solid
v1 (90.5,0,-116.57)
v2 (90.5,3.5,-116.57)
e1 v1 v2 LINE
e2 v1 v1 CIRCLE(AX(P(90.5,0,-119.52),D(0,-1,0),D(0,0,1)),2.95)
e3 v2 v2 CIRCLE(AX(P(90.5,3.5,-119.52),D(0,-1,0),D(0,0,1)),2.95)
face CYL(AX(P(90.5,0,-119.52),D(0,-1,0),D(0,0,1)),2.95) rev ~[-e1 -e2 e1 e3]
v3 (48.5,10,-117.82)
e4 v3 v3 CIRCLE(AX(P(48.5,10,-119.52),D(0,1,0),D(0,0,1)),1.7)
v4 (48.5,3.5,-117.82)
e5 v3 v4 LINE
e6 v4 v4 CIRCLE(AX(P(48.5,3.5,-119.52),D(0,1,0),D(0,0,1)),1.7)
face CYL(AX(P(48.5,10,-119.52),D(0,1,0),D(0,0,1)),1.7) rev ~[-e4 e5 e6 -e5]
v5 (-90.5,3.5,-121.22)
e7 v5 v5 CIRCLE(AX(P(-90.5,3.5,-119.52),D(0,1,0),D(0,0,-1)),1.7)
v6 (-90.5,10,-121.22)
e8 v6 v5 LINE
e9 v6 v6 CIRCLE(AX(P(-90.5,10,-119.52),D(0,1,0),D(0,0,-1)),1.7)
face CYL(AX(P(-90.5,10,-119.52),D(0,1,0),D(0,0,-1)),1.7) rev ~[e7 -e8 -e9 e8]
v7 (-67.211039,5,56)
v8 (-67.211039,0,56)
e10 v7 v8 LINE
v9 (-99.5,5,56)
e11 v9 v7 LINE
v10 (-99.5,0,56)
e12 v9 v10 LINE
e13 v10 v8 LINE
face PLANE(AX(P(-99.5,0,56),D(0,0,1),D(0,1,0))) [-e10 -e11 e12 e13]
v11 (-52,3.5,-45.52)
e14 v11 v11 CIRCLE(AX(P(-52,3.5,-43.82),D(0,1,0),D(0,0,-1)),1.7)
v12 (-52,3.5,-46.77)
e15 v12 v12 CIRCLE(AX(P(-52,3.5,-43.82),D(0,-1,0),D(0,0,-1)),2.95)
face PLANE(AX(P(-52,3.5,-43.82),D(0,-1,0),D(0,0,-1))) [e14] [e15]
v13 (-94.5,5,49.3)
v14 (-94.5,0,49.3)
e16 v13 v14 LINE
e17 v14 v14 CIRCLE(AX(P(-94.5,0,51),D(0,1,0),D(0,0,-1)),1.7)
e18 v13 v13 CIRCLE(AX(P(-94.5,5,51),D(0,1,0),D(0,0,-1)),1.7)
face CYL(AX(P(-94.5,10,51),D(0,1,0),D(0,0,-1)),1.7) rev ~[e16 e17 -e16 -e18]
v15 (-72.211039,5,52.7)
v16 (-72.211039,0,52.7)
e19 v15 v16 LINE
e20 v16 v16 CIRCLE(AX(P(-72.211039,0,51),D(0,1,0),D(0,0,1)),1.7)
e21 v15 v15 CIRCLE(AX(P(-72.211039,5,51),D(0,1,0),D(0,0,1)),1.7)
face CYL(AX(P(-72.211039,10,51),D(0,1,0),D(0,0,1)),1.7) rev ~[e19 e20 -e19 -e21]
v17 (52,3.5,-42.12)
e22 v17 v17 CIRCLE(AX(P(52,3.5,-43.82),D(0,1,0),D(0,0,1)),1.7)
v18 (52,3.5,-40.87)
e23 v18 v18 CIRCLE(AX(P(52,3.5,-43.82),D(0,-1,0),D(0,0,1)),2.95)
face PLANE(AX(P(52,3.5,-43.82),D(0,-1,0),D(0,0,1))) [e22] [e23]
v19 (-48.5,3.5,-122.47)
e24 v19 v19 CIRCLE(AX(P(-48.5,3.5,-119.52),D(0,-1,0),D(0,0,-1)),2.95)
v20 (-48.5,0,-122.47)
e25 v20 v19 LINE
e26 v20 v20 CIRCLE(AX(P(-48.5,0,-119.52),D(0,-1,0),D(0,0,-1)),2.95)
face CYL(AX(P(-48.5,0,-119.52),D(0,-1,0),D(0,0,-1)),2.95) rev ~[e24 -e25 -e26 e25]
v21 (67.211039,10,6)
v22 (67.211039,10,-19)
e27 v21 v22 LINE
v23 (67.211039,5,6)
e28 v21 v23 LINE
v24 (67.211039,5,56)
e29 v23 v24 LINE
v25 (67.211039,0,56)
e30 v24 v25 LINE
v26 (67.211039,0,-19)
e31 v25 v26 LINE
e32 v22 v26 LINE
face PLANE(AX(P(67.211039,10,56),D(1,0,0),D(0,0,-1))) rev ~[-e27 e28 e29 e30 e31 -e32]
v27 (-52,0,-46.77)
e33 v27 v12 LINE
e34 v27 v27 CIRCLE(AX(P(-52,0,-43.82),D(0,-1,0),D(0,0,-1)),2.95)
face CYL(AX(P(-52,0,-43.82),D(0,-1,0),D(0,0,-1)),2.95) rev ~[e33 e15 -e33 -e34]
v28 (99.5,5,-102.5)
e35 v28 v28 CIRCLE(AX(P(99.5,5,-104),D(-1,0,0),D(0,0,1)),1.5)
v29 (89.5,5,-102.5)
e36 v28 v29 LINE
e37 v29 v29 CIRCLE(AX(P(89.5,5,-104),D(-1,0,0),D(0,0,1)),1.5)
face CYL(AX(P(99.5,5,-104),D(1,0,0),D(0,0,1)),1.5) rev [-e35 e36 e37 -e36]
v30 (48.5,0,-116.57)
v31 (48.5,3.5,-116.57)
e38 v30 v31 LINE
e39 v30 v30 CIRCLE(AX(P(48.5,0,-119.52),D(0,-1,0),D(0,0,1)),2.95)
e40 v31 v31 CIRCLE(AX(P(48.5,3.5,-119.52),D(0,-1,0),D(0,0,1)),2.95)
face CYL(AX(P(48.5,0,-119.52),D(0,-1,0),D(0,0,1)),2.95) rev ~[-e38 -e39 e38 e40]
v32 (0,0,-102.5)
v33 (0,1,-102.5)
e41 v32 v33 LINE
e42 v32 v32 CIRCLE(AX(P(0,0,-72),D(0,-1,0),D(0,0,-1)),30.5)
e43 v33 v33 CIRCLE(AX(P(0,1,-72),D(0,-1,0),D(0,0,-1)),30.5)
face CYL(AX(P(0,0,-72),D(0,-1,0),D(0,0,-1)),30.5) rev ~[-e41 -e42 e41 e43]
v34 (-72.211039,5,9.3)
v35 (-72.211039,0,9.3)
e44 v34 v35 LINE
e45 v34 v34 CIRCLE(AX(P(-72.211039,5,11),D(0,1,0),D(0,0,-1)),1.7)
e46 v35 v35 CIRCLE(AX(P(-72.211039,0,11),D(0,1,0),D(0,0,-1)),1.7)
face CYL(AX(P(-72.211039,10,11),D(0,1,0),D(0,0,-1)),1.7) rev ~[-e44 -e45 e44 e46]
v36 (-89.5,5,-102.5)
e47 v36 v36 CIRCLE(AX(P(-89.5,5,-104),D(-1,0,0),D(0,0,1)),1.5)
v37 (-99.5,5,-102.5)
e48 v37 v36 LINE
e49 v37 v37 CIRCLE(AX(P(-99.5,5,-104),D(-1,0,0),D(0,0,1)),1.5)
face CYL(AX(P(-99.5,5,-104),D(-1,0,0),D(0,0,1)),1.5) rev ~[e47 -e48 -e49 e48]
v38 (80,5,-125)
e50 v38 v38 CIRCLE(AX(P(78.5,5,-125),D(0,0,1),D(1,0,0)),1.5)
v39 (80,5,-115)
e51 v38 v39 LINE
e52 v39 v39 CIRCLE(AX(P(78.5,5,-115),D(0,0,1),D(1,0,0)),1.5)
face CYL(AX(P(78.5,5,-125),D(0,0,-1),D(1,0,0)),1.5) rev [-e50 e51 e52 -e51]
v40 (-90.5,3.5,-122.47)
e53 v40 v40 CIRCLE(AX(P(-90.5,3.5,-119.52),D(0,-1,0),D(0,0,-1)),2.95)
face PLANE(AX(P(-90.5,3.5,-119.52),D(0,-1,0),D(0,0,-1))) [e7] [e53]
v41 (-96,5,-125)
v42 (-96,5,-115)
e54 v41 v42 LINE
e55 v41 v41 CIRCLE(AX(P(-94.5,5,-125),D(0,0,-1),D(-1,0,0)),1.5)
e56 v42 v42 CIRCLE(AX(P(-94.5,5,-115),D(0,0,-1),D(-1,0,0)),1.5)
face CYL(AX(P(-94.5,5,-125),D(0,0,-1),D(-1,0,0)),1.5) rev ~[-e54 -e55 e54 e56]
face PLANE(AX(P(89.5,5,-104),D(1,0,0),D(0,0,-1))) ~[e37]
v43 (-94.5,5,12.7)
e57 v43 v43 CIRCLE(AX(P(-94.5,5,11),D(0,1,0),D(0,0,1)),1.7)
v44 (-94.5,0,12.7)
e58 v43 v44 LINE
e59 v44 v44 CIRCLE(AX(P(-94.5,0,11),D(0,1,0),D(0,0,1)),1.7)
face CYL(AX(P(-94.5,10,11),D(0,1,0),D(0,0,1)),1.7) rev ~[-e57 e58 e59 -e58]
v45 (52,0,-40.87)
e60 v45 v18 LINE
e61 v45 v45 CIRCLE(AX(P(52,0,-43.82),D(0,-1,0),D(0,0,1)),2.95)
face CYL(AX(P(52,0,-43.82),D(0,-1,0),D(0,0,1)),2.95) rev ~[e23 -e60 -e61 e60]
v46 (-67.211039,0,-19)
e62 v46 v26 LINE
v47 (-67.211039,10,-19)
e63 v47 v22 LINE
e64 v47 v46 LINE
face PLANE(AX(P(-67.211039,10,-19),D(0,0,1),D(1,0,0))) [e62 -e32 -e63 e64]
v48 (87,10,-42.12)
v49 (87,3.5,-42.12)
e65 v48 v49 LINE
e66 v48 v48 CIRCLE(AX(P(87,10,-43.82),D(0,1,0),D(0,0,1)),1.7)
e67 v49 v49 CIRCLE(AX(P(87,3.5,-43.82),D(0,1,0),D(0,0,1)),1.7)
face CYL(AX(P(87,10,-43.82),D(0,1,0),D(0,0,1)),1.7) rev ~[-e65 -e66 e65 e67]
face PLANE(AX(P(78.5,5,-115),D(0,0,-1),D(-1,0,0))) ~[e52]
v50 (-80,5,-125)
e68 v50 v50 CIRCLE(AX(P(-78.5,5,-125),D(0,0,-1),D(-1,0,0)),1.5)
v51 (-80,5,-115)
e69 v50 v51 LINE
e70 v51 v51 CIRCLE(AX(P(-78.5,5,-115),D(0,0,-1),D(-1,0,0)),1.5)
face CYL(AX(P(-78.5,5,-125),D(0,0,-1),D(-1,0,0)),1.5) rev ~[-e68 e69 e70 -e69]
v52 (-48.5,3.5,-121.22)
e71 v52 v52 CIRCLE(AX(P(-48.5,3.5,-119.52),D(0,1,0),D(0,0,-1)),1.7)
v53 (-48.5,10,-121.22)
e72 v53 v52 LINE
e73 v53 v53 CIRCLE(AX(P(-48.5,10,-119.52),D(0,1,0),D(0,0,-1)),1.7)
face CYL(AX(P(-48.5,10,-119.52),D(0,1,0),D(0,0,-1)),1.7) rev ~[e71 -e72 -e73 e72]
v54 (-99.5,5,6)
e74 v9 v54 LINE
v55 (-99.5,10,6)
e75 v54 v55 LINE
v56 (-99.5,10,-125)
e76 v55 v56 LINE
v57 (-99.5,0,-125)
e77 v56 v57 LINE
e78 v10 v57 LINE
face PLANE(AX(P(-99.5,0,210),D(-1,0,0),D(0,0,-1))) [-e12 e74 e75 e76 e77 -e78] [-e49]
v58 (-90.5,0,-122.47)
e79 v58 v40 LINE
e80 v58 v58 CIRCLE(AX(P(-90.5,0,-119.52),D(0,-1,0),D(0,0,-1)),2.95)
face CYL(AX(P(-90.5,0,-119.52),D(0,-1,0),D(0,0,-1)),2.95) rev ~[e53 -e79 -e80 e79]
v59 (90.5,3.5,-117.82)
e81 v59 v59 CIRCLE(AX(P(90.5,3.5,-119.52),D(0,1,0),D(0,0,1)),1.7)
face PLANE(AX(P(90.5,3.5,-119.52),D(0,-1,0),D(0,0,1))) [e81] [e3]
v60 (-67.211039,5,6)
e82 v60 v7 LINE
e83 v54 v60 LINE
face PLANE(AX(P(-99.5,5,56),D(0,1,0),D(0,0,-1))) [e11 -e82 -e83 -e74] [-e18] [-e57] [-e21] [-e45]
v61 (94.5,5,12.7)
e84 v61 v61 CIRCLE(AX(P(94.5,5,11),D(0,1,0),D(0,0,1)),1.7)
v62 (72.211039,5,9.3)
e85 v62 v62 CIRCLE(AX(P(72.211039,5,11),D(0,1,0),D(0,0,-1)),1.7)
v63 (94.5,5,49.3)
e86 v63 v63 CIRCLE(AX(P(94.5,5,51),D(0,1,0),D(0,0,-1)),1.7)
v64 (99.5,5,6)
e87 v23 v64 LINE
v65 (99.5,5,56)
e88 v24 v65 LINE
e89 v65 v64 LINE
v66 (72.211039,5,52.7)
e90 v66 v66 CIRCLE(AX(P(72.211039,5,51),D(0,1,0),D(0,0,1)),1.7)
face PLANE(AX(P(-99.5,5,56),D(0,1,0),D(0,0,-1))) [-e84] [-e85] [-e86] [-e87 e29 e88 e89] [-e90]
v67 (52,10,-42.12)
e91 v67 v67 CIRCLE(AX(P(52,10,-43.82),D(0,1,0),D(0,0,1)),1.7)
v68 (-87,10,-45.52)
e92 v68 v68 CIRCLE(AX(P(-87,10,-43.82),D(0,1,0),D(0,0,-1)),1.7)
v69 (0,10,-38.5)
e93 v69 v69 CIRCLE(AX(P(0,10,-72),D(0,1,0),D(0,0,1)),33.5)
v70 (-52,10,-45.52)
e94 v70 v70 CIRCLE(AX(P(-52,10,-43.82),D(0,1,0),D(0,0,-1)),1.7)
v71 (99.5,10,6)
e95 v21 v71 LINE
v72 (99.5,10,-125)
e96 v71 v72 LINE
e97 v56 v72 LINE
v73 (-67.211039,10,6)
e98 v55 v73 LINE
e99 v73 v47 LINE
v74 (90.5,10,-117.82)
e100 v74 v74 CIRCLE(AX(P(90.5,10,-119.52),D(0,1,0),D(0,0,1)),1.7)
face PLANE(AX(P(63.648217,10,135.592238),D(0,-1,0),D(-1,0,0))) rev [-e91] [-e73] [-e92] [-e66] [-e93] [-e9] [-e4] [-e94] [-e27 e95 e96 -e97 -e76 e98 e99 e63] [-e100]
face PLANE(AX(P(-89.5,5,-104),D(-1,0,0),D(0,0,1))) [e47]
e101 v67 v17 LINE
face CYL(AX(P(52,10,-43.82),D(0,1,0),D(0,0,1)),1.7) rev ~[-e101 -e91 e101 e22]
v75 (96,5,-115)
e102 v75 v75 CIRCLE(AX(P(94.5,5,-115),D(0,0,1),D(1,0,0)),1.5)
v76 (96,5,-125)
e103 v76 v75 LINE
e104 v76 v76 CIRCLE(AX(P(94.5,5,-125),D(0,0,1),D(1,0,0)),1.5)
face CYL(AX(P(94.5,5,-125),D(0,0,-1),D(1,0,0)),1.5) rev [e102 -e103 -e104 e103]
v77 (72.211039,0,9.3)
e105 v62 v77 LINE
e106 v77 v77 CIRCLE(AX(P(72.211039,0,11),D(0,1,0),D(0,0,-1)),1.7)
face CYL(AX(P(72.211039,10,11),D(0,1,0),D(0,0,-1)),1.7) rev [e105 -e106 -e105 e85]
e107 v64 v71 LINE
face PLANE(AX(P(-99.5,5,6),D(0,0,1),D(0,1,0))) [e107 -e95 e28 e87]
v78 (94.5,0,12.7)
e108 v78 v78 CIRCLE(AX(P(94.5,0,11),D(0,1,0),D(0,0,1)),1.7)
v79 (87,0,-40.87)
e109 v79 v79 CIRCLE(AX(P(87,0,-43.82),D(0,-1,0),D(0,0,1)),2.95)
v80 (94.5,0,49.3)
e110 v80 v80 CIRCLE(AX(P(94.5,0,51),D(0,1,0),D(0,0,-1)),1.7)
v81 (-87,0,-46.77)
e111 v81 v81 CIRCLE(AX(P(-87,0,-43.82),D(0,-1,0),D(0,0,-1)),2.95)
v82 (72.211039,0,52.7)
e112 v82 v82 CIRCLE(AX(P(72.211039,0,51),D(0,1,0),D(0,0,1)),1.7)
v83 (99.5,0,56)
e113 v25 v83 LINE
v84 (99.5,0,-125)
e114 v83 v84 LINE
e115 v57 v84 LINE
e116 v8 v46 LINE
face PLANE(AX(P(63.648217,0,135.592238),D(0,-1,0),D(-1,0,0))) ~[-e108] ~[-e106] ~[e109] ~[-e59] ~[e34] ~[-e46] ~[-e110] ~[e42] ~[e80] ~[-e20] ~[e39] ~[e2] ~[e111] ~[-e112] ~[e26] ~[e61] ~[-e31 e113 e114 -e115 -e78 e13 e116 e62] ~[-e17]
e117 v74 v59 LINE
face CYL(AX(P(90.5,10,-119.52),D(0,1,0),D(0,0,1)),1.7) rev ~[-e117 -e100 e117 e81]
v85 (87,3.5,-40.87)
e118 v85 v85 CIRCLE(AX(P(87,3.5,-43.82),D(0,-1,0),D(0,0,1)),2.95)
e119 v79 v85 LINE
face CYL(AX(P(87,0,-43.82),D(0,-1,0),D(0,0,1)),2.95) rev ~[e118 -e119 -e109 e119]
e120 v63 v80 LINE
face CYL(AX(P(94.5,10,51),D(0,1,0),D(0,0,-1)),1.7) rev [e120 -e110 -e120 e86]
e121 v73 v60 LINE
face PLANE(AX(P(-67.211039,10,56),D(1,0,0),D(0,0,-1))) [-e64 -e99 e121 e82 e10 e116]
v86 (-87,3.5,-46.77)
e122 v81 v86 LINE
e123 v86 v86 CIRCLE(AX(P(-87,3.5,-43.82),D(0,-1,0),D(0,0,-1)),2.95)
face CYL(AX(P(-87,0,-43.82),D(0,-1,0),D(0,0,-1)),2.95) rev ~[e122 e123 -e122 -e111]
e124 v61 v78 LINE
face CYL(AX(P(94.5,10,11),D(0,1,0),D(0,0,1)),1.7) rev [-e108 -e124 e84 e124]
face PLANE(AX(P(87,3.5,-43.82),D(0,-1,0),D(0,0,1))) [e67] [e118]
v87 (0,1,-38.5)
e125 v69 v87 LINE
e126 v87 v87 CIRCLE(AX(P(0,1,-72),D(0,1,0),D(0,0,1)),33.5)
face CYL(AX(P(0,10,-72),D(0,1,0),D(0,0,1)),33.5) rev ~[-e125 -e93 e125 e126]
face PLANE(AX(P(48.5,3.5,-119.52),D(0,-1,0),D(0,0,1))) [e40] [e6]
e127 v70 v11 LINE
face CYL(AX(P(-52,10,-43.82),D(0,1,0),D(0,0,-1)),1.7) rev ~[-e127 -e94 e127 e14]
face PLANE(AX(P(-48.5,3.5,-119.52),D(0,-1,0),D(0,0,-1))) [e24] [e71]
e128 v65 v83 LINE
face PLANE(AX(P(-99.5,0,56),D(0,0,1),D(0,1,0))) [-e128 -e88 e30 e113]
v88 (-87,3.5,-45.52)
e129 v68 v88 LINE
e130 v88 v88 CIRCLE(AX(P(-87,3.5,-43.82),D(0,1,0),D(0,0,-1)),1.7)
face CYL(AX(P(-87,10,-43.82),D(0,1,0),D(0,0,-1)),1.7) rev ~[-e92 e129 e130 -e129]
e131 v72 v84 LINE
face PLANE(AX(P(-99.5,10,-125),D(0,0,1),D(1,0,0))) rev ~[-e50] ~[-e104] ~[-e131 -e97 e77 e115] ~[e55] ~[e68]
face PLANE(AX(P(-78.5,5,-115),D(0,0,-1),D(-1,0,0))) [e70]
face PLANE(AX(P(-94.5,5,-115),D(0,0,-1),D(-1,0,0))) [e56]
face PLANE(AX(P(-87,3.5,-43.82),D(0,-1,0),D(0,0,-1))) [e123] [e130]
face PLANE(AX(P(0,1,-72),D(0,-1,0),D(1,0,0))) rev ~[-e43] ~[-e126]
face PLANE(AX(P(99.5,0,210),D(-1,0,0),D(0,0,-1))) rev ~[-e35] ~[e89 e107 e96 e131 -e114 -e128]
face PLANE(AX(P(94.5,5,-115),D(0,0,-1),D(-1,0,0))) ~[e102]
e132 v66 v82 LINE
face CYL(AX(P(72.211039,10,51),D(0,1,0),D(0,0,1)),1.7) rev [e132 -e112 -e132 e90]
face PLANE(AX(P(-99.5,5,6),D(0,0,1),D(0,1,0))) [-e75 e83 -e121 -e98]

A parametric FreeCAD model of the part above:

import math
import FreeCAD as App
import Part
import Sketcher

V = App.Vector
Q = App.Units.Quantity

doc = App.newDocument("Part")
body = doc.addObject("PartDesign::Body", "Body")

# Sketch on XZ plane
sketch1 = body.newObject("Sketcher::SketchObject", "Sketch")
sketch1.AttachmentSupport = (doc.getObject("XZ_Plane"), [""])
sketch1.MapMode = "FlatFace"
sketch1.addGeometry([
    Part.LineSegment(V(-100, -210, 0), V(-100, 210, 0)),
    Part.LineSegment(V(-100, 210, 0), V(100, 210, 0)),
    Part.LineSegment(V(100, 210, 0), V(100, -210, 0)),
    Part.LineSegment(V(100, -210, 0), V(-100, -210, 0)),
], False)
sketch1.addConstraint([
    Sketcher.Constraint("Coincident", 0, 2, 1, 1),
    Sketcher.Constraint("Coincident", 1, 2, 2, 1),
    Sketcher.Constraint("Coincident", 2, 2, 3, 1),
    Sketcher.Constraint("Coincident", 3, 2, 0, 1),
    Sketcher.Constraint("Vertical", 0),
    Sketcher.Constraint("Horizontal", 1),
    Sketcher.Constraint("Vertical", 2),
    Sketcher.Constraint("Horizontal", 3),
    Sketcher.Constraint("Symmetric", 0, 2, 2, 2, -1, 1),
    Sketcher.Constraint("DistanceX", 1, 1, 1, 2, 199.0),
    Sketcher.Constraint("DistanceY", 0, 1, 0, 2, 420.0),
])
pad1 = body.newObject("PartDesign::Pad", "Pad")
pad1.Profile = sketch1
pad1.Length = 10
pad1.Reversed = True

# Sketch on XZ plane
sketch2 = body.newObject("Sketcher::SketchObject", "Sketch001")
sketch2.AttachmentSupport = (doc.getObject("XZ_Plane"), [""])
sketch2.MapMode = "FlatFace"
sketch2.AttachmentOffset = App.Placement(V(0, 0, -10), App.Rotation())
sketch2.addGeometry([
    Part.LineSegment(V(18, 210, 0), V(100, 210, 0)),  # 0
    Part.LineSegment(V(100, 210, 0), V(100, 56, 0)),  # 1
    Part.LineSegment(V(100, 56, 0), V(18, 210, 0)),  # 2
    Part.LineSegment(V(-18, 210, 0), V(-100, 56, 0)),  # 3
    Part.LineSegment(V(-100, 56, 0), V(-100, 210, 0)),  # 4
    Part.LineSegment(V(-100, 210, 0), V(-18, 210, 0)),  # 5
    Part.LineSegment(V(-100, -210, 0), V(-100, -125, 0)),  # 6
    Part.LineSegment(V(-100, -125, 0), V(100, -125, 0)),  # 7
    Part.LineSegment(V(100, -125, 0), V(100, -210, 0)),  # 8
    Part.LineSegment(V(100, -210, 0), V(-100, -210, 0)),  # 9
    Part.LineSegment(V(67, 56, 0), V(-67, 56, 0)),  # 10
    Part.LineSegment(V(-67, 56, 0), V(-3, 178, 0)),  # 11
    Part.LineSegment(V(-3, 178, 0), V(3, 178, 0)),  # 12
    Part.LineSegment(V(3, 178, 0), V(67, 56, 0)),  # 13
], False)
sketch2.addConstraint([
    Sketcher.Constraint("Coincident", 0, 2, 1, 1),
    Sketcher.Constraint("Coincident", 1, 2, 2, 1),
    Sketcher.Constraint("Coincident", 2, 2, 0, 1),
    Sketcher.Constraint("Coincident", 3, 2, 4, 1),
    Sketcher.Constraint("Coincident", 4, 2, 5, 1),
    Sketcher.Constraint("Coincident", 5, 2, 3, 1),
    Sketcher.Constraint("Coincident", 6, 2, 7, 1),
    Sketcher.Constraint("Coincident", 7, 2, 8, 1),
    Sketcher.Constraint("Coincident", 8, 2, 9, 1),
    Sketcher.Constraint("Coincident", 9, 2, 6, 1),
    Sketcher.Constraint("Coincident", 10, 2, 11, 1),
    Sketcher.Constraint("Coincident", 11, 2, 12, 1),
    Sketcher.Constraint("Coincident", 12, 2, 13, 1),
    Sketcher.Constraint("Coincident", 13, 2, 10, 1),
    Sketcher.Constraint("Horizontal", 0),
    Sketcher.Constraint("Vertical", 1),
    Sketcher.Constraint("Vertical", 4),
    Sketcher.Constraint("Horizontal", 5),
    Sketcher.Constraint("Vertical", 6),
    Sketcher.Constraint("Horizontal", 7),
    Sketcher.Constraint("Vertical", 8),
    Sketcher.Constraint("Horizontal", 9),
    Sketcher.Constraint("Horizontal", 10),
    Sketcher.Constraint("Horizontal", 12),
    Sketcher.Constraint("Symmetric", 4, 2, 8, 2, -1, 1),
    Sketcher.Constraint("Symmetric", 0, 2, 9, 2, -1, 1),
    Sketcher.Constraint("Symmetric", 1, 2, 3, 2, -2),
    Sketcher.Constraint("Parallel", 3, 11),
    Sketcher.Constraint("Parallel", 2, 13),
    Sketcher.Constraint("Horizontal", 3, 2, 10, 2),
    Sketcher.Constraint("Equal", 0, 5),
    Sketcher.Constraint("DistanceX", 7, 1, 7, 2, 199.0),
    Sketcher.Constraint("DistanceY", 1, 2, 1, 1, 154.0),
    Sketcher.Constraint("DistanceY", 6, 1, 6, 2, 85.0),
    Sketcher.Constraint("DistanceX", 0, 1, 0, 2, 81.5),
    Sketcher.Constraint("DistanceY", -1, 1, 0, 2, 210.0),
    Sketcher.Constraint("DistanceY", -1, 1, 11, 2, 178.0),
    Sketcher.Constraint("DistanceX", 10, 2, 10, 1, 134.422078),
    Sketcher.Constraint("DistanceX", 10, 2, -1, 1, 67.211039),
])
pocket1 = body.newObject("PartDesign::Pocket", "Pocket")
pocket1.Profile = sketch2
pocket1.Length = 10
pocket1.Reversed = True

# Sketch on XZ plane
sketch3 = body.newObject("Sketcher::SketchObject", "Sketch002")
sketch3.AttachmentSupport = (doc.getObject("XZ_Plane"), [""])
sketch3.MapMode = "FlatFace"
sketch3.AttachmentOffset = App.Placement(V(0, 0, -10), App.Rotation())
sketch3.addGeometry([
    Part.Circle(V(-11, 205, 0), V(0, 0, 1), 1.7),
    Part.Circle(V(-11, 188.2, 0), V(0, 0, 1), 1.7),
    Part.Circle(V(11, 205, 0), V(0, 0, 1), 1.7),
    Part.Circle(V(11, 188.2, 0), V(0, 0, 1), 1.7),
], False)
sketch3.addConstraint([
    Sketcher.Constraint("Equal", 0, 1),
    Sketcher.Constraint("Equal", 1, 2),
    Sketcher.Constraint("Equal", 2, 3),
    Sketcher.Constraint("Symmetric", 0, 3, 2, 3, -2),
    Sketcher.Constraint("Symmetric", 1, 3, 3, 3, -2),
    Sketcher.Constraint("Vertical", 0, 3, 1, 3),
    Sketcher.Constraint("Diameter", 0, 3.4),
    Sketcher.Constraint("DistanceX", 0, 3, -1, 1, 11.0),
    Sketcher.Constraint("DistanceY", -1, 1, 0, 3, 205.0),
    Sketcher.Constraint("DistanceY", -1, 1, 1, 3, 188.18),
])
pocket2 = body.newObject("PartDesign::Pocket", "Pocket001")
pocket2.Profile = sketch3
pocket2.Type = "ThroughAll"
pocket2.Reversed = True

# Sketch on XZ plane
sketch4 = body.newObject("Sketcher::SketchObject", "Sketch003")
sketch4.AttachmentSupport = (doc.getObject("XZ_Plane"), [""])
sketch4.MapMode = "FlatFace"
sketch4.addGeometry([
    Part.LineSegment(V(-8.1, 206.7, 0), V(-11, 208.4, 0)),  # 0
    Part.LineSegment(V(-11, 208.4, 0), V(-13.9, 206.7, 0)),  # 1
    Part.LineSegment(V(-13.9, 206.7, 0), V(-13.9, 203.3, 0)),  # 2
    Part.LineSegment(V(-13.9, 203.3, 0), V(-11, 201.6, 0)),  # 3
    Part.LineSegment(V(-11, 201.6, 0), V(-8.1, 203.3, 0)),  # 4
    Part.LineSegment(V(-8.1, 203.3, 0), V(-8.1, 206.7, 0)),  # 5
    Part.LineSegment(V(11, 208.4, 0), V(8.1, 206.7, 0)),  # 6
    Part.LineSegment(V(8.1, 206.7, 0), V(8.1, 203.3, 0)),  # 7
    Part.LineSegment(V(8.1, 203.3, 0), V(11, 201.6, 0)),  # 8
    Part.LineSegment(V(11, 201.6, 0), V(13.9, 203.3, 0)),  # 9
    Part.LineSegment(V(13.9, 203.3, 0), V(13.9, 206.7, 0)),  # 10
    Part.LineSegment(V(13.9, 206.7, 0), V(11, 208.4, 0)),  # 11
    Part.LineSegment(V(-8.1, 186.5, 0), V(-8.1, 189.9, 0)),  # 12
    Part.LineSegment(V(-8.1, 189.9, 0), V(-11, 191.6, 0)),  # 13
    Part.LineSegment(V(-11, 191.6, 0), V(-13.9, 189.9, 0)),  # 14
    Part.LineSegment(V(-13.9, 189.9, 0), V(-13.9, 186.5, 0)),  # 15
    Part.LineSegment(V(-13.9, 186.5, 0), V(-11, 184.8, 0)),  # 16
    Part.LineSegment(V(-11, 184.8, 0), V(-8.1, 186.5, 0)),  # 17
    Part.LineSegment(V(8.1, 189.9, 0), V(8.1, 186.5, 0)),  # 18
    Part.LineSegment(V(8.1, 186.5, 0), V(11, 184.8, 0)),  # 19
    Part.LineSegment(V(11, 184.8, 0), V(13.9, 186.5, 0)),  # 20
    Part.LineSegment(V(13.9, 186.5, 0), V(13.9, 189.9, 0)),  # 21
    Part.LineSegment(V(13.9, 189.9, 0), V(11, 191.6, 0)),  # 22
    Part.LineSegment(V(11, 191.6, 0), V(8.1, 189.9, 0)),  # 23
], False)
sketch4.addConstraint([
    Sketcher.Constraint("Coincident", 0, 2, 1, 1),
    Sketcher.Constraint("Coincident", 1, 2, 2, 1),
    Sketcher.Constraint("Coincident", 2, 2, 3, 1),
    Sketcher.Constraint("Coincident", 3, 2, 4, 1),
    Sketcher.Constraint("Coincident", 4, 2, 5, 1),
    Sketcher.Constraint("Coincident", 5, 2, 0, 1),
    Sketcher.Constraint("Coincident", 6, 2, 7, 1),
    Sketcher.Constraint("Coincident", 7, 2, 8, 1),
    Sketcher.Constraint("Coincident", 8, 2, 9, 1),
    Sketcher.Constraint("Coincident", 9, 2, 10, 1),
    Sketcher.Constraint("Coincident", 10, 2, 11, 1),
    Sketcher.Constraint("Coincident", 11, 2, 6, 1),
    Sketcher.Constraint("Coincident", 12, 2, 13, 1),
    Sketcher.Constraint("Coincident", 13, 2, 14, 1),
    Sketcher.Constraint("Coincident", 14, 2, 15, 1),
    Sketcher.Constraint("Coincident", 15, 2, 16, 1),
    Sketcher.Constraint("Coincident", 16, 2, 17, 1),
    Sketcher.Constraint("Coincident", 17, 2, 12, 1),
    Sketcher.Constraint("Coincident", 18, 2, 19, 1),
    Sketcher.Constraint("Coincident", 19, 2, 20, 1),
    Sketcher.Constraint("Coincident", 20, 2, 21, 1),
    Sketcher.Constraint("Coincident", 21, 2, 22, 1),
    Sketcher.Constraint("Coincident", 22, 2, 23, 1),
    Sketcher.Constraint("Coincident", 23, 2, 18, 1),
    Sketcher.Constraint("Vertical", 2),
    Sketcher.Constraint("Vertical", 5),
    Sketcher.Constraint("Vertical", 7),
    Sketcher.Constraint("Vertical", 10),
    Sketcher.Constraint("Vertical", 12),
    Sketcher.Constraint("Vertical", 15),
    Sketcher.Constraint("Vertical", 18),
    Sketcher.Constraint("Vertical", 21),
    Sketcher.Constraint("Symmetric", 5, 2, 6, 2, -2),
    Sketcher.Constraint("Symmetric", 3, 2, 8, 2, -2),
    Sketcher.Constraint("Symmetric", 2, 2, 9, 2, -2),
    Sketcher.Constraint("Symmetric", 0, 2, 11, 2, -2),
    Sketcher.Constraint("Symmetric", 17, 2, 18, 2, -2),
    Sketcher.Constraint("Symmetric", 16, 2, 19, 2, -2),
    Sketcher.Constraint("Symmetric", 15, 2, 20, 2, -2),
    Sketcher.Constraint("Symmetric", 13, 2, 22, 2, -2),
    Sketcher.Constraint("Parallel", 0, 3),
    Sketcher.Constraint("Parallel", 1, 4),
    Sketcher.Constraint("Parallel", 4, 6),
    Sketcher.Constraint("Parallel", 3, 8),
    Sketcher.Constraint("Parallel", 8, 11),
    Sketcher.Constraint("Parallel", 11, 13),
    Sketcher.Constraint("Parallel", 9, 14),
    Sketcher.Constraint("Parallel", 13, 16),
    Sketcher.Constraint("Parallel", 14, 17),
    Sketcher.Constraint("Parallel", 19, 22),
    Sketcher.Constraint("Parallel", 20, 23),
    Sketcher.Constraint("Horizontal", 2, 2, 4, 2),
    Sketcher.Constraint("Horizontal", 1, 2, 5, 2),
    Sketcher.Constraint("Horizontal", 12, 2, 14, 2),
    Sketcher.Constraint("Horizontal", 15, 2, 17, 2),
    Sketcher.Constraint("Vertical", 5, 2, 12, 2),
    Sketcher.Constraint("Vertical", 3, 2, 13, 2),
    Sketcher.Constraint("Equal", 10, 12),
    Sketcher.Constraint("Angle", 0, Q("150 deg")),
    Sketcher.Constraint("DistanceX", 0, 2, -1, 1, 11.0),
    Sketcher.Constraint("DistanceX", 2, 2, 4, 2, 5.9),
    Sketcher.Constraint("DistanceY", 12, 2, 5, 2, 16.82),
    Sketcher.Constraint("DistanceY", 2, 2, 2, 1, 3.406367),
    Sketcher.Constraint("DistanceY", -1, 1, 0, 2, 208.406367),
])
pocket3 = body.newObject("PartDesign::Pocket", "Pocket002")
pocket3.Profile = sketch4
pocket3.Length = 4

# Sketch on XZ plane
sketch5 = body.newObject("Sketcher::SketchObject", "Sketch004")
sketch5.AttachmentSupport = (doc.getObject("XZ_Plane"), [""])
sketch5.MapMode = "FlatFace"
sketch5.addGeometry([
    Part.LineSegment(V(-18, 200, 0), V(-18, 193, 0)),
    Part.LineSegment(V(-18, 193, 0), V(18, 193, 0)),
    Part.LineSegment(V(18, 193, 0), V(18, 200, 0)),
    Part.LineSegment(V(18, 200, 0), V(-18, 200, 0)),
], False)
sketch5.addConstraint([
    Sketcher.Constraint("Coincident", 0, 2, 1, 1),
    Sketcher.Constraint("Coincident", 1, 2, 2, 1),
    Sketcher.Constraint("Coincident", 2, 2, 3, 1),
    Sketcher.Constraint("Coincident", 3, 2, 0, 1),
    Sketcher.Constraint("Vertical", 0),
    Sketcher.Constraint("Horizontal", 1),
    Sketcher.Constraint("Vertical", 2),
    Sketcher.Constraint("Horizontal", 3),
    Sketcher.Constraint("DistanceX", 1, 1, 1, 2, 35.0),
    Sketcher.Constraint("DistanceY", 0, 2, 0, 1, 7.0),
    Sketcher.Constraint("DistanceX", 0, 2, -1, 1, 17.5),
    Sketcher.Constraint("DistanceY", -1, 1, 0, 2, 193.09),
])
pocket4 = body.newObject("PartDesign::Pocket", "Pocket003")
pocket4.Profile = sketch5
pocket4.Length = 5

# Sketch on YZ plane
sketch6 = body.newObject("Sketcher::SketchObject", "Sketch005")
sketch6.AttachmentSupport = (doc.getObject("YZ_Plane"), [""])
sketch6.MapMode = "FlatFace"
sketch6.AttachmentOffset = App.Placement(V(0, 0, 17.5), App.Rotation())
sketch6.addGeometry([
    Part.LineSegment(V(8.5, 196.6, 0), V(5, 193.1, 0)),
    Part.LineSegment(V(5, 193.1, 0), V(5, 200.1, 0)),
    Part.LineSegment(V(5, 200.1, 0), V(8.5, 196.6, 0)),
], False)
sketch6.addConstraint([
    Sketcher.Constraint("Coincident", 0, 2, 1, 1),
    Sketcher.Constraint("Coincident", 1, 2, 2, 1),
    Sketcher.Constraint("Coincident", 2, 2, 0, 1),
    Sketcher.Constraint("Vertical", 1),
    Sketcher.Constraint("Perpendicular", 0, 2),
    Sketcher.Constraint("Equal", 0, 2),
    Sketcher.Constraint("DistanceY", 1, 1, 1, 2, 7.0),
    Sketcher.Constraint("DistanceX", -1, 1, 0, 2, 5.0),
    Sketcher.Constraint("DistanceY", -1, 1, 0, 2, 193.09),
])
pocket5 = body.newObject("PartDesign::Pocket", "Pocket004")
pocket5.Profile = sketch6
pocket5.Length = 35

# Sketch on XZ plane
sketch7 = body.newObject("Sketcher::SketchObject", "Sketch006")
sketch7.AttachmentSupport = (doc.getObject("XZ_Plane"), [""])
sketch7.MapMode = "FlatFace"
sketch7.AttachmentOffset = App.Placement(V(0, 0, -10), App.Rotation())
sketch7.addGeometry([
    Part.Circle(V(90.5, -119.5, 0), V(0, 0, 1), 1.7),  # 0
    Part.Circle(V(48.5, -119.5, 0), V(0, 0, 1), 1.7),  # 1
    Part.Circle(V(-48.5, -119.5, 0), V(0, 0, 1), 1.7),  # 2
    Part.Circle(V(-90.5, -119.5, 0), V(0, 0, 1), 1.7),  # 3
    Part.Circle(V(87, -43.8, 0), V(0, 0, 1), 1.7),  # 4
    Part.Circle(V(52, -43.8, 0), V(0, 0, 1), 1.7),  # 5
    Part.Circle(V(-87, -43.8, 0), V(0, 0, 1), 1.7),  # 6
    Part.Circle(V(-52, -43.8, 0), V(0, 0, 1), 1.7),  # 7
], False)
sketch7.addConstraint([
    Sketcher.Constraint("Equal", 0, 1),
    Sketcher.Constraint("Equal", 1, 2),
    Sketcher.Constraint("Equal", 2, 3),
    Sketcher.Constraint("Equal", 3, 4),
    Sketcher.Constraint("Equal", 4, 5),
    Sketcher.Constraint("Equal", 5, 6),
    Sketcher.Constraint("Equal", 6, 7),
    Sketcher.Constraint("Symmetric", 1, 3, 2, 3, -2),
    Sketcher.Constraint("Symmetric", 0, 3, 3, 3, -2),
    Sketcher.Constraint("Symmetric", 4, 3, 6, 3, -2),
    Sketcher.Constraint("Symmetric", 5, 3, 7, 3, -2),
    Sketcher.Constraint("Horizontal", 0, 3, 1, 3),
    Sketcher.Constraint("Horizontal", 4, 3, 5, 3),
    Sketcher.Constraint("Diameter", 0, 3.4),
    Sketcher.Constraint("DistanceX", -1, 1, 4, 3, 87.0),
    Sketcher.Constraint("DistanceX", -1, 1, 5, 3, 52.0),
    Sketcher.Constraint("DistanceX", 1, 3, 0, 3, 42.0),
    Sketcher.Constraint("DistanceX", 2, 3, 1, 3, 97.0),
    Sketcher.Constraint("DistanceY", 0, 3, 4, 3, 75.7),
    Sketcher.Constraint("DistanceY", 0, 3, -1, 1, 119.52),
])
pocket6 = body.newObject("PartDesign::Pocket", "Pocket005")
pocket6.Profile = sketch7
pocket6.Type = "ThroughAll"
pocket6.Reversed = True

# Sketch on XZ plane
sketch8 = body.newObject("Sketcher::SketchObject", "Sketch007")
sketch8.AttachmentSupport = (doc.getObject("XZ_Plane"), [""])
sketch8.MapMode = "FlatFace"
sketch8.AttachmentOffset = App.Placement(V(0, 0, -10), App.Rotation())
sketch8.addGeometry([
    Part.LineSegment(V(-67, -19, 0), V(-67, 56, 0)),
    Part.LineSegment(V(-67, 56, 0), V(67, 56, 0)),
    Part.LineSegment(V(67, 56, 0), V(67, -19, 0)),
    Part.LineSegment(V(67, -19, 0), V(-67, -19, 0)),
], False)
sketch8.addConstraint([
    Sketcher.Constraint("Coincident", 0, 2, 1, 1),
    Sketcher.Constraint("Coincident", 1, 2, 2, 1),
    Sketcher.Constraint("Coincident", 2, 2, 3, 1),
    Sketcher.Constraint("Coincident", 3, 2, 0, 1),
    Sketcher.Constraint("Vertical", 0),
    Sketcher.Constraint("Horizontal", 1),
    Sketcher.Constraint("Vertical", 2),
    Sketcher.Constraint("Horizontal", 3),
    Sketcher.Constraint("DistanceY", 0, 1, 0, 2, 75.0),
    Sketcher.Constraint("DistanceY", -1, 1, 0, 2, 56.0),
    Sketcher.Constraint("DistanceX", 1, 1, 1, 2, 134.422078),
    Sketcher.Constraint("DistanceX", 0, 2, -1, 1, 67.211039),
])
pocket7 = body.newObject("PartDesign::Pocket", "Pocket006")
pocket7.Profile = sketch8
pocket7.Type = "ThroughAll"
pocket7.Reversed = True

# Sketch on XZ plane
sketch9 = body.newObject("Sketcher::SketchObject", "Sketch008")
sketch9.AttachmentSupport = (doc.getObject("XZ_Plane"), [""])
sketch9.MapMode = "FlatFace"
sketch9.AttachmentOffset = App.Placement(V(0, 0, -10), App.Rotation())
sketch9.addGeometry([
    Part.LineSegment(V(-3, 178, 0), V(-67, 56, 0)),
    Part.ArcOfCircle(Part.Circle(V(60, 67, 0), V(0, 0, 1), 128), math.radians(119), math.radians(185)),
], False)
sketch9.addConstraint([
    Sketcher.Constraint("Coincident", 0, 1, 1, 1),
    Sketcher.Constraint("Coincident", 1, 2, 0, 2),
    Sketcher.Constraint("DistanceY", -1, 1, 0, 1, 178.0),
    Sketcher.Constraint("DistanceY", -1, 1, 1, 2, 56.0),
    Sketcher.Constraint("Radius", 1, 127.738656),
    Sketcher.Constraint("DistanceX", -1, 1, 1, 3, 60.076909),
    Sketcher.Constraint("DistanceX", 1, 2, -1, 1, 67.211039),
])
pocket8 = body.newObject("PartDesign::Pocket", "Pocket007")
pocket8.Profile = sketch9
pocket8.Type = "ThroughAll"
pocket8.Reversed = True

# Sketch on XZ plane
sketch10 = body.newObject("Sketcher::SketchObject", "Sketch009")
sketch10.AttachmentSupport = (doc.getObject("XZ_Plane"), [""])
sketch10.MapMode = "FlatFace"
sketch10.AttachmentOffset = App.Placement(V(0, 0, -10), App.Rotation())
sketch10.addGeometry([
    Part.LineSegment(V(-18, 210, 0), V(-100, 56, 0)),
    Part.ArcOfCircle(Part.Circle(V(114, 41, 0), V(0, 0, 1), 214), math.radians(128), math.radians(176)),
], False)
sketch10.addConstraint([
    Sketcher.Constraint("Coincident", 0, 1, 1, 1),
    Sketcher.Constraint("Coincident", 1, 2, 0, 2),
    Sketcher.Constraint("DistanceX", 0, 1, -1, 1, 18.0),
    Sketcher.Constraint("DistanceY", -1, 1, 0, 1, 210.0),
    Sketcher.Constraint("DistanceY", -1, 1, 1, 2, 56.0),
    Sketcher.Constraint("DistanceX", 1, 2, -1, 1, 99.5),
    Sketcher.Constraint("Radius", 1, 214.4465),
])
pad2 = body.newObject("PartDesign::Pad", "Pad001")
pad2.Profile = sketch10
pad2.Length = 10
doc.recompute()

mirrored = body.newObject("PartDesign::Mirrored", "Mirrored")
mirrored.Originals = [pocket8, pad2]
mirrored.MirrorPlane = (doc.getObject("YZ_Plane"), [""])
body.Tip = mirrored

# Sketch on XZ plane
sketch11 = body.newObject("Sketcher::SketchObject", "Sketch010")
sketch11.AttachmentSupport = (doc.getObject("XZ_Plane"), [""])
sketch11.MapMode = "FlatFace"
sketch11.AttachmentOffset = App.Placement(V(0, 0, -10), App.Rotation())
sketch11.addGeometry([
    Part.Circle(V(-94.5, 11, 0), V(0, 0, 1), 1.7),
    Part.Circle(V(-72.2, 11, 0), V(0, 0, 1), 1.7),
    Part.Circle(V(-72.2, 51, 0), V(0, 0, 1), 1.7),
    Part.Circle(V(-94.5, 51, 0), V(0, 0, 1), 1.7),
], False)
sketch11.addConstraint([
    Sketcher.Constraint("Equal", 0, 1),
    Sketcher.Constraint("Equal", 1, 2),
    Sketcher.Constraint("Equal", 2, 3),
    Sketcher.Constraint("Horizontal", 0, 3, 1, 3),
    Sketcher.Constraint("Horizontal", 2, 3, 3, 3),
    Sketcher.Constraint("Vertical", 1, 3, 2, 3),
    Sketcher.Constraint("Vertical", 0, 3, 3, 3),
    Sketcher.Constraint("Diameter", 0, 3.4),
    Sketcher.Constraint("DistanceY", -1, 1, 0, 3, 11.0),
    Sketcher.Constraint("DistanceY", -1, 1, 2, 3, 51.0),
    Sketcher.Constraint("DistanceX", 0, 3, -1, 1, 94.5),
    Sketcher.Constraint("DistanceX", 1, 3, -1, 1, 72.211039),
])
pocket9 = body.newObject("PartDesign::Pocket", "Pocket008")
pocket9.Profile = sketch11
pocket9.Type = "ThroughAll"
pocket9.Reversed = True
doc.recompute()

mirrored2 = body.newObject("PartDesign::Mirrored", "Mirrored001")
mirrored2.Originals = [pocket9]
mirrored2.MirrorPlane = (doc.getObject("YZ_Plane"), [""])
body.Tip = mirrored2

# Sketch on YZ plane
sketch12 = body.newObject("Sketcher::SketchObject", "Sketch011")
sketch12.AttachmentSupport = (doc.getObject("YZ_Plane"), [""])
sketch12.MapMode = "FlatFace"
sketch12.AttachmentOffset = App.Placement(V(0, 0, -99.5), App.Rotation())
sketch12.addGeometry([
    Part.LineSegment(V(13, 6, 0), V(5, 6, 0)),  # 0
    Part.LineSegment(V(5, 6, 0), V(5, 56, 0)),  # 1
    Part.LineSegment(V(5, 56, 0), V(0, 56, 0)),  # 2
    Part.LineSegment(V(0, 56, 0), V(-60, 91, 0)),  # 3
    Part.LineSegment(V(-60, 91, 0), V(-41, 243, 0)),  # 4
    Part.LineSegment(V(-41, 243, 0), V(83, 201, 0)),  # 5
    Part.LineSegment(V(83, 201, 0), V(13, 6, 0)),  # 6
], False)
sketch12.addConstraint([
    Sketcher.Constraint("Coincident", 0, 2, 1, 1),
    Sketcher.Constraint("Coincident", 1, 2, 2, 1),
    Sketcher.Constraint("Coincident", 2, 2, 3, 1),
    Sketcher.Constraint("Coincident", 3, 2, 4, 1),
    Sketcher.Constraint("Coincident", 4, 2, 5, 1),
    Sketcher.Constraint("Coincident", 5, 2, 6, 1),
    Sketcher.Constraint("Coincident", 6, 2, 0, 1),
    Sketcher.Constraint("Horizontal", 0),
    Sketcher.Constraint("Vertical", 1),
    Sketcher.Constraint("Horizontal", 2),
    Sketcher.Constraint("PointOnObject", 2, 2, -2),
    Sketcher.Constraint("DistanceX", 2, 2, 2, 1, 5.0),
    Sketcher.Constraint("DistanceY", 1, 1, 1, 2, 50.0),
    Sketcher.Constraint("DistanceY", -1, 1, 0, 2, 6.0),
    Sketcher.Constraint("Distance", 5, 130.626732),
    Sketcher.Constraint("Distance", 6, 206.699439),
    Sketcher.Constraint("DistanceX", 0, 2, 0, 1, 8.101487),
    Sketcher.Constraint("DistanceX", 4, 2, -1, 1, 41.037631),
    Sketcher.Constraint("DistanceX", 3, 2, 4, 2, 19.247151),
    Sketcher.Constraint("DistanceY", 3, 2, 4, 2, 151.755729),
    Sketcher.Constraint("DistanceX", 4, 2, 5, 2, 123.583909),
])
pocket10 = body.newObject("PartDesign::Pocket", "Pocket009")
pocket10.Profile = sketch12
pocket10.Type = "ThroughAll"
pocket10.Reversed = True

# Sketch on XZ plane
sketch13 = body.newObject("Sketcher::SketchObject", "Sketch012")
sketch13.AttachmentSupport = (doc.getObject("XZ_Plane"), [""])
sketch13.MapMode = "FlatFace"
sketch13.AttachmentOffset = App.Placement(V(0, 0, -10), App.Rotation())
sketch13.addGeometry(Part.Circle(V(0, -72, 0), V(0, 0, 1), 34), False)
sketch13.addConstraint([
    Sketcher.Constraint("PointOnObject", 0, 3, -2),
    Sketcher.Constraint("Diameter", 0, 67.0),
    Sketcher.Constraint("DistanceY", 0, 3, -1, 1, 72.0),
])
pocket11 = body.newObject("PartDesign::Pocket", "Pocket010")
pocket11.Profile = sketch13
pocket11.Type = "ThroughAll"
pocket11.Reversed = True

# Sketch on XZ plane
sketch14 = body.newObject("Sketcher::SketchObject", "Sketch013")
sketch14.AttachmentSupport = (doc.getObject("XZ_Plane"), [""])
sketch14.MapMode = "FlatFace"
sketch14.addGeometry([
    Part.Circle(V(0, -72, 0), V(0, 0, 1), 36),
    Part.Circle(V(0, -72, 0), V(0, 0, 1), 30),
], False)
sketch14.addConstraint([
    Sketcher.Constraint("Coincident", 1, 3, 0, 3),
    Sketcher.Constraint("PointOnObject", 0, 3, -2),
    Sketcher.Constraint("Diameter", 1, 61.0),
    Sketcher.Constraint("DistanceY", 0, 3, -1, 1, 72.0),
    Sketcher.Constraint("Diameter", 0, 72.012512),
])
pad3 = body.newObject("PartDesign::Pad", "Pad002")
pad3.Profile = sketch14
pad3.Length = 1
pad3.Reversed = True

# Sketch on YZ plane
sketch15 = body.newObject("Sketcher::SketchObject", "Sketch014")
sketch15.AttachmentSupport = (doc.getObject("YZ_Plane"), [""])
sketch15.MapMode = "FlatFace"
sketch15.AttachmentOffset = App.Placement(V(0, 0, -99.5), App.Rotation())
sketch15.addGeometry(Part.Circle(V(5, -104, 0), V(0, 0, 1), 1.5), False)
sketch15.addConstraint([
    Sketcher.Constraint("Diameter", 0, 3.0),
    Sketcher.Constraint("DistanceX", -1, 1, 0, 3, 5.0),
    Sketcher.Constraint("DistanceY", 0, 3, -1, 1, 104.0),
])
pocket12 = body.newObject("PartDesign::Pocket", "Pocket011")
pocket12.Profile = sketch15
pocket12.Length = 10
pocket12.Reversed = True

# Sketch on XY plane
sketch16 = body.newObject("Sketcher::SketchObject", "Sketch015")
sketch16.AttachmentSupport = (doc.getObject("XY_Plane"), [""])
sketch16.MapMode = "FlatFace"
sketch16.AttachmentOffset = App.Placement(V(0, 0, -125), App.Rotation())
sketch16.addGeometry([
    Part.Circle(V(-94.5, 5, 0), V(0, 0, 1), 1.5),
    Part.Circle(V(-78.5, 5, 0), V(0, 0, 1), 1.5),
], False)
sketch16.addConstraint([
    Sketcher.Constraint("Equal", 0, 1),
    Sketcher.Constraint("Horizontal", 0, 3, 1, 3),
    Sketcher.Constraint("Diameter", 0, 3.0),
    Sketcher.Constraint("DistanceY", -1, 1, 0, 3, 5.0),
    Sketcher.Constraint("DistanceX", 0, 3, 1, 3, 16.0),
    Sketcher.Constraint("DistanceX", 0, 3, -1, 1, 94.5),
])
pocket13 = body.newObject("PartDesign::Pocket", "Pocket012")
pocket13.Profile = sketch16
pocket13.Length = 10
pocket13.Reversed = True
doc.recompute()

mirrored3 = body.newObject("PartDesign::Mirrored", "Mirrored002")
mirrored3.Originals = [pocket12, pocket13]
mirrored3.MirrorPlane = (doc.getObject("YZ_Plane"), [""])
body.Tip = mirrored3

# Sketch on XZ plane
sketch17 = body.newObject("Sketcher::SketchObject", "Sketch016")
sketch17.AttachmentSupport = (doc.getObject("XZ_Plane"), [""])
sketch17.MapMode = "FlatFace"
sketch17.addGeometry([
    Part.Circle(V(-90.5, -119.5, 0), V(0, 0, 1), 3),  # 0
    Part.Circle(V(-48.5, -119.5, 0), V(0, 0, 1), 3),  # 1
    Part.Circle(V(-87, -43.8, 0), V(0, 0, 1), 3),  # 2
    Part.Circle(V(-52, -43.8, 0), V(0, 0, 1), 3),  # 3
    Part.Circle(V(52, -43.8, 0), V(0, 0, 1), 3),  # 4
    Part.Circle(V(87, -43.8, 0), V(0, 0, 1), 3),  # 5
    Part.Circle(V(48.5, -119.5, 0), V(0, 0, 1), 3),  # 6
    Part.Circle(V(90.5, -119.5, 0), V(0, 0, 1), 3),  # 7
], False)
sketch17.addConstraint([
    Sketcher.Constraint("Equal", 0, 1),
    Sketcher.Constraint("Equal", 1, 2),
    Sketcher.Constraint("Equal", 2, 3),
    Sketcher.Constraint("Equal", 3, 4),
    Sketcher.Constraint("Equal", 4, 5),
    Sketcher.Constraint("Equal", 5, 6),
    Sketcher.Constraint("Equal", 6, 7),
    Sketcher.Constraint("Symmetric", 3, 3, 4, 3, -2),
    Sketcher.Constraint("Symmetric", 2, 3, 5, 3, -2),
    Sketcher.Constraint("Symmetric", 1, 3, 6, 3, -2),
    Sketcher.Constraint("Symmetric", 0, 3, 7, 3, -2),
    Sketcher.Constraint("Horizontal", 0, 3, 1, 3),
    Sketcher.Constraint("Horizontal", 2, 3, 3, 3),
    Sketcher.Constraint("Diameter", 0, 5.9),
    Sketcher.Constraint("DistanceX", 2, 3, -1, 1, 87.0),
    Sketcher.Constraint("DistanceX", 3, 3, -1, 1, 52.0),
    Sketcher.Constraint("DistanceX", 0, 3, 1, 3, 42.0),
    Sketcher.Constraint("DistanceX", 1, 3, 6, 3, 97.0),
    Sketcher.Constraint("DistanceY", 0, 3, 2, 3, 75.7),
    Sketcher.Constraint("DistanceY", 0, 3, -1, 1, 119.52),
])
pocket14 = body.newObject("PartDesign::Pocket", "Pocket013")
pocket14.Profile = sketch17
pocket14.Length = 3.5

doc.recompute()
